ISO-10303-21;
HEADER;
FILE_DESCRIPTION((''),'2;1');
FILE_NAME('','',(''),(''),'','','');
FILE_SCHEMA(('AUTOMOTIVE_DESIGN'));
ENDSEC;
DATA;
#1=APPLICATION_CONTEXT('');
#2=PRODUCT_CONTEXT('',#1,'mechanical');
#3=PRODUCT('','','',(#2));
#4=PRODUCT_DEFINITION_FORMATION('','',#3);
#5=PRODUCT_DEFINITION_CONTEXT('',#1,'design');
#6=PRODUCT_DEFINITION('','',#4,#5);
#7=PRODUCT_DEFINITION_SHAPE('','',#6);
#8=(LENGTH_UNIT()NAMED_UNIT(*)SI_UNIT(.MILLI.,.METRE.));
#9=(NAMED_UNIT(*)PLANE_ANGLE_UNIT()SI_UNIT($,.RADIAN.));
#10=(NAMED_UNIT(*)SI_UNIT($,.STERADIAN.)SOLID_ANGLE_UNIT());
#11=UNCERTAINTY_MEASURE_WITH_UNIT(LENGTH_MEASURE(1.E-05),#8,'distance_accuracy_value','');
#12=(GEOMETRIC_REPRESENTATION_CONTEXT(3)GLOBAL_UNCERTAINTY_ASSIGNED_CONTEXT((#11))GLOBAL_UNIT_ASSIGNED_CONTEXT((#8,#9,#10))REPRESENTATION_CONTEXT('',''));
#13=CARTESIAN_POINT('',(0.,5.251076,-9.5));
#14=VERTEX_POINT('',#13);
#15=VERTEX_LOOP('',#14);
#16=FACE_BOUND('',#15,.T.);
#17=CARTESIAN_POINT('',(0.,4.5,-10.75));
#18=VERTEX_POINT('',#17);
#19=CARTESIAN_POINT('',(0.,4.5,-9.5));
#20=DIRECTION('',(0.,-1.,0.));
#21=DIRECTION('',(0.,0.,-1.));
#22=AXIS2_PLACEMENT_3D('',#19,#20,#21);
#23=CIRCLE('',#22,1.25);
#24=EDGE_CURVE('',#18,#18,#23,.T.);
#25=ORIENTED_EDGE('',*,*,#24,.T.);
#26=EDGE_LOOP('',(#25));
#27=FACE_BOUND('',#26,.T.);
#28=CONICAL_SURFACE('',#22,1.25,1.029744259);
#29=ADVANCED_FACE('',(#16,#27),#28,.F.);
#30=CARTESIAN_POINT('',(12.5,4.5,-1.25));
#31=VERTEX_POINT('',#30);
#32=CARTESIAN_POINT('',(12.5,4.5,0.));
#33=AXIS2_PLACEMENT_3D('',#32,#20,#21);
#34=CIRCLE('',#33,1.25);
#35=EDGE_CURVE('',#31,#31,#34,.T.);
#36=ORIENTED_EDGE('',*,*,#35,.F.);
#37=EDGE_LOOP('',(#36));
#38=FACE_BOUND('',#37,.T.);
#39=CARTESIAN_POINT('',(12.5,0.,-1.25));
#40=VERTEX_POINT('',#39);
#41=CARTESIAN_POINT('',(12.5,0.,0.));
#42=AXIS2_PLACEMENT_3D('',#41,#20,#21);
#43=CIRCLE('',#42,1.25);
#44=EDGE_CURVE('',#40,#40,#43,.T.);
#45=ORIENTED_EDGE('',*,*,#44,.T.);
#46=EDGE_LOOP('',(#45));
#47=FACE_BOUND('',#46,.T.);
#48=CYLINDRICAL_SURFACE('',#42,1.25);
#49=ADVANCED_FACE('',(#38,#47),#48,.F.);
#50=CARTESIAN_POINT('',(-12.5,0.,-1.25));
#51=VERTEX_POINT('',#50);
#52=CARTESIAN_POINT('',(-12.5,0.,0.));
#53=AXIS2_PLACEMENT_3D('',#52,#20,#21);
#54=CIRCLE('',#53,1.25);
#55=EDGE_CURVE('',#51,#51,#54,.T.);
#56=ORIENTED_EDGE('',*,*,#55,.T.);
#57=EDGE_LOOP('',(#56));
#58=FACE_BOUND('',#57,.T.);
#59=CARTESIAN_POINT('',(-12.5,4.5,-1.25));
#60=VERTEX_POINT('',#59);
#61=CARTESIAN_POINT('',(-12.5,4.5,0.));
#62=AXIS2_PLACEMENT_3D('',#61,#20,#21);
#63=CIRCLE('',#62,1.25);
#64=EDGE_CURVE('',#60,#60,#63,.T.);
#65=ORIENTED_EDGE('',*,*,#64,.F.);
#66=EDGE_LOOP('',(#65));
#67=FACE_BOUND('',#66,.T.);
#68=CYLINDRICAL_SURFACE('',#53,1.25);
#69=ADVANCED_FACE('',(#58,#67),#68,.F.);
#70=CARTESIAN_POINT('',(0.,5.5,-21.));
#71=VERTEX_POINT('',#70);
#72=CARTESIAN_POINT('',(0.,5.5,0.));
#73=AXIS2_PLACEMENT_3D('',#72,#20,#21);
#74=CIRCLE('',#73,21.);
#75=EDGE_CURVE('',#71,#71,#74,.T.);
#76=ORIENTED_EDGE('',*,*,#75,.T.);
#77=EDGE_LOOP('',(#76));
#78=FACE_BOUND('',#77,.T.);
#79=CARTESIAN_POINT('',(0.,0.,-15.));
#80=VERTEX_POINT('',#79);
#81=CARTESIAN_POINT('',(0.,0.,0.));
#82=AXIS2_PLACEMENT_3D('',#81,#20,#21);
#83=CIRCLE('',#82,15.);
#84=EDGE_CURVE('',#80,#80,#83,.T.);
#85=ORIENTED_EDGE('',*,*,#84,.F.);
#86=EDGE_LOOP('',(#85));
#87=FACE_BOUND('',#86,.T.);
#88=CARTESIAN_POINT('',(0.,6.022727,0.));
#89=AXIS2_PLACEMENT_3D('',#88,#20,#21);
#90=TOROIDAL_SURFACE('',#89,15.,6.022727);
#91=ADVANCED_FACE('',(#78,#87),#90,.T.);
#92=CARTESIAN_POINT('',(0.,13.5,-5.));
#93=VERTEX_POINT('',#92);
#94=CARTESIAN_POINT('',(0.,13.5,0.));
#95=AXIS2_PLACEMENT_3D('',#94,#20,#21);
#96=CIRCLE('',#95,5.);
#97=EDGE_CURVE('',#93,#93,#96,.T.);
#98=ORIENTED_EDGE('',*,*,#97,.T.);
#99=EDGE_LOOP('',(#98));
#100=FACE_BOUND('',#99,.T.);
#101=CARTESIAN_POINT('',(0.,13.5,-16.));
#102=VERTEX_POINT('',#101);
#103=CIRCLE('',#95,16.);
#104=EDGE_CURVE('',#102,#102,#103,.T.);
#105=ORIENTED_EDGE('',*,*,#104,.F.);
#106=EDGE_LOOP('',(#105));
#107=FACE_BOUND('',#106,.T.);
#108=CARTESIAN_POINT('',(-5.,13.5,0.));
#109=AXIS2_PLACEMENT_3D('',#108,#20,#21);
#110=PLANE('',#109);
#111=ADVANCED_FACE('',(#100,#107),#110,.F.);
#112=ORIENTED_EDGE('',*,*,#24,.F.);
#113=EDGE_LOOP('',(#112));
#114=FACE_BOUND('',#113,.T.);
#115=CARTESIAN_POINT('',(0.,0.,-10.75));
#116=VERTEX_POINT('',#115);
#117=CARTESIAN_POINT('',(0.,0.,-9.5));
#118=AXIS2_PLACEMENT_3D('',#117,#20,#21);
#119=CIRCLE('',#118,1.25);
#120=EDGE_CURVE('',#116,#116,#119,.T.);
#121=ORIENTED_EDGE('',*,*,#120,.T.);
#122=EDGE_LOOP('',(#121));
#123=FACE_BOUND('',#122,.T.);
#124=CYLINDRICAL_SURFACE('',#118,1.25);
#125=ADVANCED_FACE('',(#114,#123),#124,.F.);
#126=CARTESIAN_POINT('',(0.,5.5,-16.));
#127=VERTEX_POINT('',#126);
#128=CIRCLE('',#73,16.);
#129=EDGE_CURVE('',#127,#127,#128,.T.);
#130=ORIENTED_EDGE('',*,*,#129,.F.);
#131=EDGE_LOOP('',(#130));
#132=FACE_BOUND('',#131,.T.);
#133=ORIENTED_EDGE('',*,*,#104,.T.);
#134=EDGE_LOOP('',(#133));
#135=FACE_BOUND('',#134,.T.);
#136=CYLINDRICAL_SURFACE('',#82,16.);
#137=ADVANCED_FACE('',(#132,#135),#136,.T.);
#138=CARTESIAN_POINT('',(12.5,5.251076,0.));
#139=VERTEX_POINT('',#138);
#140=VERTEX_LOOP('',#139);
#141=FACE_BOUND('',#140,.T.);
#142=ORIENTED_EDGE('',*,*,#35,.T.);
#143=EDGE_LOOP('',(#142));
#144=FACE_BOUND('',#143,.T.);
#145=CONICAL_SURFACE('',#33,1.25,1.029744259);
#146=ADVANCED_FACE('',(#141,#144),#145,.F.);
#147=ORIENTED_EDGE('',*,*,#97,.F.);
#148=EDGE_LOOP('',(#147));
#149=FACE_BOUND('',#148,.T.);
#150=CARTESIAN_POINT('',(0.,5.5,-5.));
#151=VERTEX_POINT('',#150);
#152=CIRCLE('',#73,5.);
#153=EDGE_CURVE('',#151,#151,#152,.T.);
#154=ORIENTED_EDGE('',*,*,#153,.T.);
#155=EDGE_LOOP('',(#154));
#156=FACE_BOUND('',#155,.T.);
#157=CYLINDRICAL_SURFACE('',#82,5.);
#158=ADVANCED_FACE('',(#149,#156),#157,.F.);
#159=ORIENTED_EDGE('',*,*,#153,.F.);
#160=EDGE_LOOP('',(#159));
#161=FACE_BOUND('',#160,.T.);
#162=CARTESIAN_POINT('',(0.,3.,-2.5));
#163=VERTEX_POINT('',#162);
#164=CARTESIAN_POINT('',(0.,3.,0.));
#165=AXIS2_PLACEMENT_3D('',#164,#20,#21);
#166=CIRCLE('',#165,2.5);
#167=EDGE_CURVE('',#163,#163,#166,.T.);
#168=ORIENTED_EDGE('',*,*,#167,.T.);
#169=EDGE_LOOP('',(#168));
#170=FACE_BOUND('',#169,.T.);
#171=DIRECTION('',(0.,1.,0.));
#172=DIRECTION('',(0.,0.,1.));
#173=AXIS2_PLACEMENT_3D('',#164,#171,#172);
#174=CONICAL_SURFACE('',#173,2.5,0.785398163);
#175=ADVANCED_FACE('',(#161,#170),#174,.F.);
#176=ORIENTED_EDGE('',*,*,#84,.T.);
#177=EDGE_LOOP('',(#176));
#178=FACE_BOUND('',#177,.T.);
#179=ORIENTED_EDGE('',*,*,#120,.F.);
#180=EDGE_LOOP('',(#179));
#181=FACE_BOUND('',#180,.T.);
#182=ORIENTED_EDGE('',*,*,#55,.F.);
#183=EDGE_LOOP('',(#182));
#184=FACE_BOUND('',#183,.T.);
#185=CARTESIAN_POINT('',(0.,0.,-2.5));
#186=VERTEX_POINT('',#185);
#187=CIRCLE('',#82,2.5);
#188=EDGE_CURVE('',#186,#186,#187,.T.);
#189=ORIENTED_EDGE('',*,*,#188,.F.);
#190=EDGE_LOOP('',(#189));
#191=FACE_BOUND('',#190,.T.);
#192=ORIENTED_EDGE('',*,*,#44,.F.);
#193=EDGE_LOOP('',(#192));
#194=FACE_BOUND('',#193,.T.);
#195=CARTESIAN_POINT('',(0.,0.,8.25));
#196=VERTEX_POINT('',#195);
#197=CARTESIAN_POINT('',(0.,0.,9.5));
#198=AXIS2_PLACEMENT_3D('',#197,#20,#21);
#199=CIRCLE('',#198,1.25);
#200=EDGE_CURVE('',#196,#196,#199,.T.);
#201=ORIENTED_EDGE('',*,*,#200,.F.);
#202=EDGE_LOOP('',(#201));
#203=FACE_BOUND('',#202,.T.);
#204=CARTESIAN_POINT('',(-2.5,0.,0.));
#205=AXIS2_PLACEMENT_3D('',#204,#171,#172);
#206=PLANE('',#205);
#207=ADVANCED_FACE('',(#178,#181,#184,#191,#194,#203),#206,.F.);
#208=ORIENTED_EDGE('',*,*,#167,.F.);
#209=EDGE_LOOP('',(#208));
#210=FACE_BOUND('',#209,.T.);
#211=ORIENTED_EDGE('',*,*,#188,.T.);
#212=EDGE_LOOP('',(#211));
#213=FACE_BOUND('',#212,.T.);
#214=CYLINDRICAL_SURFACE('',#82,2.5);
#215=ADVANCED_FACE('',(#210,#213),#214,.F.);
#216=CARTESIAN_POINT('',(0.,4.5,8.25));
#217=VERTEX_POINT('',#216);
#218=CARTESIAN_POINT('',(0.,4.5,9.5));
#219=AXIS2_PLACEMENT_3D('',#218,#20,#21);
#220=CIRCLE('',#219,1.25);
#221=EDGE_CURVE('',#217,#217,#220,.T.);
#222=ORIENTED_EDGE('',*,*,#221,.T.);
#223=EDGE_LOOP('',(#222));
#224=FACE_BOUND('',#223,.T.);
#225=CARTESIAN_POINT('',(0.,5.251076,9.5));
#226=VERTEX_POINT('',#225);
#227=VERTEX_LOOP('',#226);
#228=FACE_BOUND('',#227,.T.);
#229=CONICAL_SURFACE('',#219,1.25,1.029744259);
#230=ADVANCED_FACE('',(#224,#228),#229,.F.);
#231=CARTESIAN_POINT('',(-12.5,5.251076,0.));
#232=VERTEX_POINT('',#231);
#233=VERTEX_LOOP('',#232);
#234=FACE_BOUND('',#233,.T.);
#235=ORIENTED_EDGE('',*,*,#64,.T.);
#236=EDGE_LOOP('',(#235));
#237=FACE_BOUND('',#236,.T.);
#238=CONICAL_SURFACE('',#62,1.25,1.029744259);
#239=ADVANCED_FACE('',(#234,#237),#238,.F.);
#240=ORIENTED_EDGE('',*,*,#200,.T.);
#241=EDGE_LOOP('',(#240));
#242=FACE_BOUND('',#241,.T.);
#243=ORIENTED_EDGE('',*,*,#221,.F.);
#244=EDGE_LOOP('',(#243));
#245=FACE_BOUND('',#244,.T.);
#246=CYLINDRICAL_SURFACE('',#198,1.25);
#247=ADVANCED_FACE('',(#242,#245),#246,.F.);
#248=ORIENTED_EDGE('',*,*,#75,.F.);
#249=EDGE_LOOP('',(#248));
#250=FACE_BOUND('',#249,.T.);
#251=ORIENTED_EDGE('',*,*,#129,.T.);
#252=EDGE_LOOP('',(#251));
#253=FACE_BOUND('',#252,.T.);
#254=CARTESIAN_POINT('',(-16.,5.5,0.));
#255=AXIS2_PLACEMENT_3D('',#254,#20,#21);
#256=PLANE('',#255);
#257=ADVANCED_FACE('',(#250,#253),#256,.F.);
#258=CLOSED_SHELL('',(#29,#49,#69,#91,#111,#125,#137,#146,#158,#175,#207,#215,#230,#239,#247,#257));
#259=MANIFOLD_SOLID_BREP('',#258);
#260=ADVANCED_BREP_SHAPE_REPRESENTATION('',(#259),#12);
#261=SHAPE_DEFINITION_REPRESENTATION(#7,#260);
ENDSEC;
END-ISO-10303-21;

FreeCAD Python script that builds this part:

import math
import FreeCAD as App
import Part
import Sketcher

V = App.Vector
Q = App.Units.Quantity

doc = App.newDocument("Part")
params = doc.addObject("Spreadsheet::Sheet", "Params")
for row, (alias, value) in enumerate([
    ("sketch1_width", "11 mm"),
    ("sketch1_width2", "5 mm"),
    ("sketch1_height", "3 mm"),
    ("sketch1_height2", "8 mm"),
    ("sketch1_width3", "12.5 mm"),
    ("revolution_angle", "360 deg"),
    ("sketch2_diameter", "2.5 mm"),
    ("hole_diameter", "2.5 mm"),
    ("hole_depth", "4.5 mm"),
], start=1):
    params.set(f"A{row}", alias)
    params.set(f"B{row}", "=" + value)
    params.setAlias(f"B{row}", alias)

body = doc.addObject("PartDesign::Body", "Body")

sketch1 = body.newObject("Sketcher::SketchObject", "Sketch")
sketch1.AttachmentSupport = (doc.getObject("XY_Plane"), [""])
sketch1.MapMode = "FlatFace"
sketch1.addGeometry(Part.LineSegment(V(-15, 0, 0), V(-2.5, 0, 0)), False)
sketch1.addGeometry(Part.LineSegment(V(-2.5, 0, 0), V(-2.5, 3, 0)), False)
sketch1.addGeometry(Part.LineSegment(V(-2.5, 3, 0), V(-5, 5.5, 0)), False)
sketch1.addGeometry(Part.LineSegment(V(-5, 5.5, 0), V(-5, 13.5, 0)), False)
sketch1.addGeometry(Part.LineSegment(V(-5, 13.5, 0), V(-16, 13.5, 0)), False)
sketch1.addGeometry(Part.LineSegment(V(-16, 13.5, 0), V(-16, 5.5, 0)), False)
sketch1.addGeometry(Part.LineSegment(V(-16, 5.5, 0), V(-21, 5.5, 0)), False)
sketch1.addGeometry(Part.ArcOfCircle(Part.Circle(V(-15, 6, 0), V(0, 0, 1), 6), math.radians(-175), math.radians(-90)), False)
sketch1.addConstraint(Sketcher.Constraint("Coincident", 0, 2, 1, 1))
sketch1.addConstraint(Sketcher.Constraint("Coincident", 1, 2, 2, 1))
sketch1.addConstraint(Sketcher.Constraint("Coincident", 2, 2, 3, 1))
sketch1.addConstraint(Sketcher.Constraint("Coincident", 3, 2, 4, 1))
sketch1.addConstraint(Sketcher.Constraint("Coincident", 4, 2, 5, 1))
sketch1.addConstraint(Sketcher.Constraint("Coincident", 5, 2, 6, 1))
sketch1.addConstraint(Sketcher.Constraint("Coincident", 6, 2, 7, 1))
sketch1.addConstraint(Sketcher.Constraint("Tangent", 7, 2, 0, 1))
sketch1.addConstraint(Sketcher.Constraint("Horizontal", 0))
sketch1.addConstraint(Sketcher.Constraint("Vertical", 1))
sketch1.addConstraint(Sketcher.Constraint("Vertical", 3))
sketch1.addConstraint(Sketcher.Constraint("Horizontal", 4))
sketch1.addConstraint(Sketcher.Constraint("Vertical", 5))
sketch1.addConstraint(Sketcher.Constraint("Horizontal", 6))
sketch1.addConstraint(Sketcher.Constraint("PointOnObject", 0, 2, -1))
sketch1.addConstraint(Sketcher.Constraint("Horizontal", 2, 2, 5, 2))
sketch1.addConstraint(Sketcher.Constraint("DistanceX", 4, 2, 4, 1, Q("11 mm")))
sketch1.addConstraint(Sketcher.Constraint("DistanceX", 6, 2, 6, 1, Q("5 mm")))
sketch1.addConstraint(Sketcher.Constraint("DistanceY", 1, 1, 1, 2, Q("3 mm")))
sketch1.addConstraint(Sketcher.Constraint("DistanceY", 3, 1, 3, 2, Q("8 mm")))
sketch1.addConstraint(Sketcher.Constraint("Angle", 2, Q("135 deg")))
sketch1.addConstraint(Sketcher.Constraint("DistanceX", 0, 1, 0, 2, Q("12.5 mm")))
sketch1.addConstraint(Sketcher.Constraint("DistanceX", 7, 3, -1, 1, Q("15 mm")))
sketch1.addConstraint(Sketcher.Constraint("DistanceX", 2, 2, -1, 1, Q("5 mm")))
sketch1.setExpression("Constraints[16]", "Params.sketch1_width")
sketch1.setExpression("Constraints[17]", "Params.sketch1_width2")
sketch1.setExpression("Constraints[18]", "Params.sketch1_height")
sketch1.setExpression("Constraints[19]", "Params.sketch1_height2")
sketch1.setExpression("Constraints[21]", "Params.sketch1_width3")
revolution = body.newObject("PartDesign::Revolution", "Revolution")
revolution.Profile = sketch1
revolution.ReferenceAxis = (sketch1, ["V_Axis"])
revolution.setExpression("Angle", "Params.revolution_angle")

sketch2 = body.newObject("Sketcher::SketchObject", "Sketch001")
sketch2.AttachmentSupport = (doc.getObject("XZ_Plane"), [""])
sketch2.MapMode = "FlatFace"
sketch2.addGeometry(Part.Circle(V(-12.5, 0, 0), V(0, 0, 1), 1.2), False)
sketch2.addGeometry(Part.Circle(V(0, -9.5, 0), V(0, 0, 1), 1.2), False)
sketch2.addGeometry(Part.Circle(V(12.5, 0, 0), V(0, 0, 1), 1.2), False)
sketch2.addGeometry(Part.Circle(V(0, 9.5, 0), V(0, 0, 1), 1.2), False)
sketch2.addConstraint(Sketcher.Constraint("Equal", 0, 1))
sketch2.addConstraint(Sketcher.Constraint("Equal", 1, 2))
sketch2.addConstraint(Sketcher.Constraint("Equal", 2, 3))
sketch2.addConstraint(Sketcher.Constraint("Symmetric", 0, 3, 2, 3, -1, 1))
sketch2.addConstraint(Sketcher.Constraint("Symmetric", 1, 3, 3, 3, -1, 1))
sketch2.addConstraint(Sketcher.Constraint("PointOnObject", 0, 3, -1))
sketch2.addConstraint(Sketcher.Constraint("PointOnObject", 1, 3, -2))
sketch2.addConstraint(Sketcher.Constraint("Diameter", 0, Q("2.5 mm")))
sketch2.addConstraint(Sketcher.Constraint("DistanceX", 0, 3, 2, 3, Q("25 mm")))
sketch2.addConstraint(Sketcher.Constraint("DistanceY", 1, 3, 3, 3, Q("19 mm")))
sketch2.setExpression("Constraints[7]", "Params.sketch2_diameter")
doc.recompute()
hole = body.newObject("PartDesign::Hole", "Hole")
hole.Profile = sketch2
hole.ThreadType = "None"
hole.setExpression("Diameter", "Params.hole_diameter")
hole.DepthType = "Dimension"
hole.setExpression("Depth", "Params.hole_depth")
hole.DrillPoint = "Angled"
hole.DrillPointAngle = 118

doc.recompute()
